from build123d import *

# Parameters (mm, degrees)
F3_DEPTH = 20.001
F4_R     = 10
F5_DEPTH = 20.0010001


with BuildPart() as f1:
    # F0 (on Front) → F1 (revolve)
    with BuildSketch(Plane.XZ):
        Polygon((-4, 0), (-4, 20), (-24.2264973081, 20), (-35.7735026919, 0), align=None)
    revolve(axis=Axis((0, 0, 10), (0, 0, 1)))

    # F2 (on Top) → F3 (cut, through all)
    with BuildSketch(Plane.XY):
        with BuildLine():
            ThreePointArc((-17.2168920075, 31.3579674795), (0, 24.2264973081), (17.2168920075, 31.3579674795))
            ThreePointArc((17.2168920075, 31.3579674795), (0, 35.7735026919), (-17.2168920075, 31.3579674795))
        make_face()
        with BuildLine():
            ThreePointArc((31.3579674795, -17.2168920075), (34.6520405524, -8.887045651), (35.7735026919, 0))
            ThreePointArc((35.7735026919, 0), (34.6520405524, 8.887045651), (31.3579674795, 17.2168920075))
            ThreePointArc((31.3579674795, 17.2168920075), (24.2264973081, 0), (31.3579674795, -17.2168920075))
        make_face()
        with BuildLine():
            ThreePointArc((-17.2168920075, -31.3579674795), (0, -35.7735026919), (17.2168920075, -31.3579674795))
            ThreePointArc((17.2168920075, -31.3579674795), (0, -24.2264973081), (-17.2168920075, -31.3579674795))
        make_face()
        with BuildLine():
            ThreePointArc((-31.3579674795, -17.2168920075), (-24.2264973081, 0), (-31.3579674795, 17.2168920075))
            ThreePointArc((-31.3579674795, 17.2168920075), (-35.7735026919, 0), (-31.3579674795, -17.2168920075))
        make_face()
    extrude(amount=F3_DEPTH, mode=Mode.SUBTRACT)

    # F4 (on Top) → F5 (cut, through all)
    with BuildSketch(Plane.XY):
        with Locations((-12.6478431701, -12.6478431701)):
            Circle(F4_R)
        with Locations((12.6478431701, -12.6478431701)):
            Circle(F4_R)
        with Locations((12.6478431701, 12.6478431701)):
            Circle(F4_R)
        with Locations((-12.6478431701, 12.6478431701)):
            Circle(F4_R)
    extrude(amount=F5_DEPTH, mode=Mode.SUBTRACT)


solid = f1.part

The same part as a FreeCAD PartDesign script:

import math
import FreeCAD as App
import Part
import Sketcher
from FreeCAD import Vector
Q = App.Units.Quantity

doc = App.newDocument("Part")
body = doc.addObject("PartDesign::Body", "Body")

# Sketch on XZ plane
sketch1 = body.newObject("Sketcher::SketchObject", "Sketch")
sketch1.AttachmentSupport = (doc.getObject("XZ_Plane"), [""])
sketch1.MapMode = "FlatFace"
sketch1.addGeometry([
    Part.LineSegment(Vector(-4, 0, 0), Vector(-4, 20, 0)),
    Part.LineSegment(Vector(-4, 20, 0), Vector(-24.226497, 20, 0)),
    Part.LineSegment(Vector(-24.226497, 20, 0), Vector(-35.773503, 0, 0)),
    Part.LineSegment(Vector(-35.773503, 0, 0), Vector(-4, 0, 0)),
], False)
sketch1.addConstraint([
    Sketcher.Constraint("Coincident", 0, 2, 1, 1),
    Sketcher.Constraint("Coincident", 1, 2, 2, 1),
    Sketcher.Constraint("Coincident", 2, 2, 3, 1),
    Sketcher.Constraint("Coincident", 3, 2, 0, 1),
    Sketcher.Constraint("Vertical", 0),
    Sketcher.Constraint("Horizontal", 1),
    Sketcher.Constraint("Horizontal", 3),
    Sketcher.Constraint("PointOnObject", 2, 2, -1),
    Sketcher.Constraint("DistanceY", 0, 1, 0, 2, 20.0),
    Sketcher.Constraint("Angle", 2, Q("-120 deg")),
    Sketcher.Constraint("DistanceX", 0, 2, -1, 1, 4.0),
    Sketcher.Constraint("DistanceX", 1, 2, 1, 1, 20.226497),
])
revolution = body.newObject("PartDesign::Revolution", "Revolution")
revolution.Profile = sketch1
revolution.ReferenceAxis = (sketch1, ["V_Axis"])
revolution.Angle = 360

# Sketch on XY plane
sketch2 = body.newObject("Sketcher::SketchObject", "Sketch001")
sketch2.AttachmentSupport = (doc.getObject("XY_Plane"), [""])
sketch2.MapMode = "FlatFace"
sketch2.addGeometry([
    Part.ArcOfCircle(Part.Circle(Vector(0, 48.574859, 0), Vector(0, 0, 1), 24.348362), math.radians(-135), math.radians(-45)),  # 0
    Part.ArcOfCircle(Part.Circle(Vector(0, 0, 0), Vector(0, 0, 1), 35.773503), math.radians(61.231293), math.radians(118.768707)),  # 1
    Part.ArcOfCircle(Part.Circle(Vector(0, 0, 0), Vector(0, 0, 1), 35.773503), math.radians(-28.768707), math.radians(0)),  # 2
    Part.ArcOfCircle(Part.Circle(Vector(0, 0, 0), Vector(0, 0, 1), 35.773503), math.radians(0), math.radians(28.768707)),  # 3
    Part.ArcOfCircle(Part.Circle(Vector(48.574859, 0, 0), Vector(0, 0, 1), 24.348362), math.radians(135), math.radians(225)),  # 4
    Part.ArcOfCircle(Part.Circle(Vector(0, 0, 0), Vector(0, 0, 1), 35.773503), math.radians(-118.768707), math.radians(-61.231293)),  # 5
    Part.ArcOfCircle(Part.Circle(Vector(0, -48.574859, 0), Vector(0, 0, 1), 24.348362), math.radians(45), math.radians(135)),  # 6
    Part.ArcOfCircle(Part.Circle(Vector(-48.574859, 0, 0), Vector(0, 0, 1), 24.348362), math.radians(-45), math.radians(45)),  # 7
    Part.ArcOfCircle(Part.Circle(Vector(0, 0, 0), Vector(0, 0, 1), 35.773503), math.radians(151.231293), math.radians(208.768707)),  # 8
], False)
sketch2.addConstraint([
    Sketcher.Constraint("Coincident", 0, 1, 1, 2),
    Sketcher.Constraint("Coincident", 1, 1, 0, 2),
    Sketcher.Constraint("Tangent", 2, 2, 3, 1),
    Sketcher.Constraint("Coincident", 3, 2, 4, 1),
    Sketcher.Constraint("Coincident", 4, 2, 2, 1),
    Sketcher.Constraint("Coincident", 5, 1, 6, 2),
    Sketcher.Constraint("Coincident", 6, 1, 5, 2),
    Sketcher.Constraint("Coincident", 7, 1, 8, 2),
    Sketcher.Constraint("Coincident", 8, 1, 7, 2),
    Sketcher.Constraint("Coincident", 1, 3, -1, 1),
    Sketcher.Constraint("Coincident", 2, 3, -1, 1),
    Sketcher.Constraint("Coincident", 5, 3, -1, 1),
    Sketcher.Constraint("Coincident", 8, 3, -1, 1),
    Sketcher.Constraint("Equal", 1, 2),
    Sketcher.Constraint("Equal", 2, 3),
    Sketcher.Constraint("Equal", 0, 4),
    Sketcher.Constraint("Equal", 3, 5),
    Sketcher.Constraint("Equal", 4, 6),
    Sketcher.Constraint("Equal", 6, 7),
    Sketcher.Constraint("Equal", 5, 8),
    Sketcher.Constraint("Symmetric", 0, 3, 6, 3, -1, 1),
    Sketcher.Constraint("Symmetric", 4, 3, 7, 3, -1, 1),
    Sketcher.Constraint("PointOnObject", 0, 3, -2),
    Sketcher.Constraint("PointOnObject", 4, 3, -1),
    Sketcher.Constraint("PointOnObject", 2, 2, -1),
    Sketcher.Constraint("Radius", 0, 24.348362),
    Sketcher.Constraint("Radius", 1, 35.773503),
    Sketcher.Constraint("DistanceY", -1, 1, 0, 3, 48.574859),
    Sketcher.Constraint("DistanceX", -1, 1, 4, 3, 48.574859),
])
pocket1 = body.newObject("PartDesign::Pocket", "Pocket")
pocket1.Profile = sketch2
pocket1.Type = "ThroughAll"
pocket1.Reversed = True

# Sketch on XY plane
sketch3 = body.newObject("Sketcher::SketchObject", "Sketch002")
sketch3.AttachmentSupport = (doc.getObject("XY_Plane"), [""])
sketch3.MapMode = "FlatFace"
sketch3.addGeometry([
    Part.Circle(Vector(-12.647843, -12.647843, 0), Vector(0, 0, 1), 10),
    Part.Circle(Vector(12.647843, -12.647843, 0), Vector(0, 0, 1), 10),
    Part.Circle(Vector(12.647843, 12.647843, 0), Vector(0, 0, 1), 10),
    Part.Circle(Vector(-12.647843, 12.647843, 0), Vector(0, 0, 1), 10),
], False)
sketch3.addConstraint([
    Sketcher.Constraint("Equal", 0, 1),
    Sketcher.Constraint("Equal", 1, 2),
    Sketcher.Constraint("Equal", 2, 3),
    Sketcher.Constraint("Symmetric", 0, 3, 2, 3, -1, 1),
    Sketcher.Constraint("Symmetric", 1, 3, 3, 3, -1, 1),
    Sketcher.Constraint("Symmetric", 0, 3, 1, 3, -2),
    Sketcher.Constraint("Diameter", 0, 20.0),
    Sketcher.Constraint("DistanceX", 0, 3, -1, 1, 12.647843),
    Sketcher.Constraint("DistanceY", 0, 3, -1, 1, 12.647843),
])
pocket2 = body.newObject("PartDesign::Pocket", "Pocket001")
pocket2.Profile = sketch3
pocket2.Type = "ThroughAll"
pocket2.Reversed = True

doc.recompute()
